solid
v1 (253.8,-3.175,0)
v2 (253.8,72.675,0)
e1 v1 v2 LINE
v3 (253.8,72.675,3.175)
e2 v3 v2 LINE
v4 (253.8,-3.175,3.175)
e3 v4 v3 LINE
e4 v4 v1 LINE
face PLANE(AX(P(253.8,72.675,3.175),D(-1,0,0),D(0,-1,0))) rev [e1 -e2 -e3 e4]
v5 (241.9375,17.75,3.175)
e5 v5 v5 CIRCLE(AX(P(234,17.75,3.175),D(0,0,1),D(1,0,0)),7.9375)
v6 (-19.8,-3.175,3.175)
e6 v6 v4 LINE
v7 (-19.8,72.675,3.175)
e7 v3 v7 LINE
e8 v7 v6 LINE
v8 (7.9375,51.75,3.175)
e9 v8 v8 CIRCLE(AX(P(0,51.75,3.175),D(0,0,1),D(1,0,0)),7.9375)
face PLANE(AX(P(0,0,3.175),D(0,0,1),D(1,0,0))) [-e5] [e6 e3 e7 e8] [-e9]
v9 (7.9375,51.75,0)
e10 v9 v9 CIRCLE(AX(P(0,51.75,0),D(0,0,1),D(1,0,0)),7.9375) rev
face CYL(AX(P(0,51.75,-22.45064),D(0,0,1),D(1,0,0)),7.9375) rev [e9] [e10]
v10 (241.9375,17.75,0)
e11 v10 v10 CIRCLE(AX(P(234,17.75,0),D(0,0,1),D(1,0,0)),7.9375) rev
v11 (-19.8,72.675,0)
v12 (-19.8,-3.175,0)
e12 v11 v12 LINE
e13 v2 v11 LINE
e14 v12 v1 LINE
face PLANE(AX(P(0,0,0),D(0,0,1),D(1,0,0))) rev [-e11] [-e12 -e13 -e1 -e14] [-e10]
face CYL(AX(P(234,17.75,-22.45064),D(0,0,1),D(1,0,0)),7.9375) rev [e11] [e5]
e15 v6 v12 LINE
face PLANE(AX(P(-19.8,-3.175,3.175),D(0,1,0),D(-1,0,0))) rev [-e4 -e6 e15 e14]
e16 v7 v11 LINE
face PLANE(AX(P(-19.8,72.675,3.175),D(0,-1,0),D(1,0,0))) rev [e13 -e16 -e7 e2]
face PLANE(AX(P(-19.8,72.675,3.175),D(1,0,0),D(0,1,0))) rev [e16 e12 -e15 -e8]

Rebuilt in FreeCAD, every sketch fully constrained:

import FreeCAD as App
import Part
import Sketcher
from FreeCAD import Vector
Q = App.Units.Quantity

doc = App.newDocument("Part")
params = doc.addObject("Spreadsheet::Sheet", "Params")
for row, (alias, value) in enumerate([
    ("pad1_length", "0.125 in"),
    ("sketch2_diameter", "0.625 in"),
    ("pocket1_length", "0.125 in"),
], start=1):
    params.set(f"A{row}", alias)
    params.set(f"B{row}", "=" + value)
    params.setAlias(f"B{row}", alias)

body = doc.addObject("PartDesign::Body", "Body")

sketch1 = body.newObject("Sketcher::SketchObject", "Sketch")
sketch1.AttachmentSupport = (doc.getObject("XY_Plane"), [""])
sketch1.MapMode = "FlatFace"
sketch1.addGeometry([
    Part.LineSegment(Vector(-19.8, 72.675, 0), Vector(-19.8, -3.175, 0)),
    Part.LineSegment(Vector(-19.8, -3.175, 0), Vector(253.8, -3.175, 0)),
    Part.LineSegment(Vector(253.8, -3.175, 0), Vector(253.8, 72.675, 0)),
    Part.LineSegment(Vector(253.8, 72.675, 0), Vector(-19.8, 72.675, 0)),
], False)
sketch1.addConstraint([
    Sketcher.Constraint("Coincident", 0, 2, 1, 1),
    Sketcher.Constraint("Coincident", 1, 2, 2, 1),
    Sketcher.Constraint("Coincident", 2, 2, 3, 1),
    Sketcher.Constraint("Coincident", 3, 2, 0, 1),
    Sketcher.Constraint("Vertical", 0),
    Sketcher.Constraint("Horizontal", 1),
    Sketcher.Constraint("Vertical", 2),
    Sketcher.Constraint("Horizontal", 3),
    Sketcher.Constraint("DistanceY", 0, 2, -1, 1, Q("0.125 in")),
    Sketcher.Constraint("DistanceX", 1, 1, 1, 2, 273.6),
    Sketcher.Constraint("DistanceY", 0, 2, 0, 1, 75.85),
    Sketcher.Constraint("DistanceX", 0, 2, -1, 1, 19.8),
])
pad1 = body.newObject("PartDesign::Pad", "Pad")
pad1.Profile = sketch1
pad1.setExpression("Length", "Params.pad1_length")

sketch2 = body.newObject("Sketcher::SketchObject", "Sketch001")
sketch2.AttachmentSupport = (doc.getObject("XY_Plane"), [""])
sketch2.MapMode = "FlatFace"
sketch2.AttachmentOffset = App.Placement(Vector(0, 0, 0.125 * 25.4), App.Rotation())
sketch2.addGeometry([
    Part.Circle(Vector(0, 51.75, 0), Vector(0, 0, 1), 7.9375),
    Part.Circle(Vector(234, 17.75, 0), Vector(0, 0, 1), 7.9375),
], False)
sketch2.addConstraint([
    Sketcher.Constraint("Equal", 0, 1),
    Sketcher.Constraint("PointOnObject", 0, 3, -2),
    Sketcher.Constraint("Diameter", 0, Q("0.625 in")),
    Sketcher.Constraint("DistanceY", -1, 1, 0, 3, 51.75),
    Sketcher.Constraint("DistanceX", -1, 1, 1, 3, 234.0),
    Sketcher.Constraint("DistanceY", -1, 1, 1, 3, 17.75),
])
sketch2.setExpression("Constraints[2]", "Params.sketch2_diameter")
pocket1 = body.newObject("PartDesign::Pocket", "Pocket")
pocket1.Profile = sketch2
pocket1.setExpression("Length", "Params.pocket1_length")

doc.recompute()
